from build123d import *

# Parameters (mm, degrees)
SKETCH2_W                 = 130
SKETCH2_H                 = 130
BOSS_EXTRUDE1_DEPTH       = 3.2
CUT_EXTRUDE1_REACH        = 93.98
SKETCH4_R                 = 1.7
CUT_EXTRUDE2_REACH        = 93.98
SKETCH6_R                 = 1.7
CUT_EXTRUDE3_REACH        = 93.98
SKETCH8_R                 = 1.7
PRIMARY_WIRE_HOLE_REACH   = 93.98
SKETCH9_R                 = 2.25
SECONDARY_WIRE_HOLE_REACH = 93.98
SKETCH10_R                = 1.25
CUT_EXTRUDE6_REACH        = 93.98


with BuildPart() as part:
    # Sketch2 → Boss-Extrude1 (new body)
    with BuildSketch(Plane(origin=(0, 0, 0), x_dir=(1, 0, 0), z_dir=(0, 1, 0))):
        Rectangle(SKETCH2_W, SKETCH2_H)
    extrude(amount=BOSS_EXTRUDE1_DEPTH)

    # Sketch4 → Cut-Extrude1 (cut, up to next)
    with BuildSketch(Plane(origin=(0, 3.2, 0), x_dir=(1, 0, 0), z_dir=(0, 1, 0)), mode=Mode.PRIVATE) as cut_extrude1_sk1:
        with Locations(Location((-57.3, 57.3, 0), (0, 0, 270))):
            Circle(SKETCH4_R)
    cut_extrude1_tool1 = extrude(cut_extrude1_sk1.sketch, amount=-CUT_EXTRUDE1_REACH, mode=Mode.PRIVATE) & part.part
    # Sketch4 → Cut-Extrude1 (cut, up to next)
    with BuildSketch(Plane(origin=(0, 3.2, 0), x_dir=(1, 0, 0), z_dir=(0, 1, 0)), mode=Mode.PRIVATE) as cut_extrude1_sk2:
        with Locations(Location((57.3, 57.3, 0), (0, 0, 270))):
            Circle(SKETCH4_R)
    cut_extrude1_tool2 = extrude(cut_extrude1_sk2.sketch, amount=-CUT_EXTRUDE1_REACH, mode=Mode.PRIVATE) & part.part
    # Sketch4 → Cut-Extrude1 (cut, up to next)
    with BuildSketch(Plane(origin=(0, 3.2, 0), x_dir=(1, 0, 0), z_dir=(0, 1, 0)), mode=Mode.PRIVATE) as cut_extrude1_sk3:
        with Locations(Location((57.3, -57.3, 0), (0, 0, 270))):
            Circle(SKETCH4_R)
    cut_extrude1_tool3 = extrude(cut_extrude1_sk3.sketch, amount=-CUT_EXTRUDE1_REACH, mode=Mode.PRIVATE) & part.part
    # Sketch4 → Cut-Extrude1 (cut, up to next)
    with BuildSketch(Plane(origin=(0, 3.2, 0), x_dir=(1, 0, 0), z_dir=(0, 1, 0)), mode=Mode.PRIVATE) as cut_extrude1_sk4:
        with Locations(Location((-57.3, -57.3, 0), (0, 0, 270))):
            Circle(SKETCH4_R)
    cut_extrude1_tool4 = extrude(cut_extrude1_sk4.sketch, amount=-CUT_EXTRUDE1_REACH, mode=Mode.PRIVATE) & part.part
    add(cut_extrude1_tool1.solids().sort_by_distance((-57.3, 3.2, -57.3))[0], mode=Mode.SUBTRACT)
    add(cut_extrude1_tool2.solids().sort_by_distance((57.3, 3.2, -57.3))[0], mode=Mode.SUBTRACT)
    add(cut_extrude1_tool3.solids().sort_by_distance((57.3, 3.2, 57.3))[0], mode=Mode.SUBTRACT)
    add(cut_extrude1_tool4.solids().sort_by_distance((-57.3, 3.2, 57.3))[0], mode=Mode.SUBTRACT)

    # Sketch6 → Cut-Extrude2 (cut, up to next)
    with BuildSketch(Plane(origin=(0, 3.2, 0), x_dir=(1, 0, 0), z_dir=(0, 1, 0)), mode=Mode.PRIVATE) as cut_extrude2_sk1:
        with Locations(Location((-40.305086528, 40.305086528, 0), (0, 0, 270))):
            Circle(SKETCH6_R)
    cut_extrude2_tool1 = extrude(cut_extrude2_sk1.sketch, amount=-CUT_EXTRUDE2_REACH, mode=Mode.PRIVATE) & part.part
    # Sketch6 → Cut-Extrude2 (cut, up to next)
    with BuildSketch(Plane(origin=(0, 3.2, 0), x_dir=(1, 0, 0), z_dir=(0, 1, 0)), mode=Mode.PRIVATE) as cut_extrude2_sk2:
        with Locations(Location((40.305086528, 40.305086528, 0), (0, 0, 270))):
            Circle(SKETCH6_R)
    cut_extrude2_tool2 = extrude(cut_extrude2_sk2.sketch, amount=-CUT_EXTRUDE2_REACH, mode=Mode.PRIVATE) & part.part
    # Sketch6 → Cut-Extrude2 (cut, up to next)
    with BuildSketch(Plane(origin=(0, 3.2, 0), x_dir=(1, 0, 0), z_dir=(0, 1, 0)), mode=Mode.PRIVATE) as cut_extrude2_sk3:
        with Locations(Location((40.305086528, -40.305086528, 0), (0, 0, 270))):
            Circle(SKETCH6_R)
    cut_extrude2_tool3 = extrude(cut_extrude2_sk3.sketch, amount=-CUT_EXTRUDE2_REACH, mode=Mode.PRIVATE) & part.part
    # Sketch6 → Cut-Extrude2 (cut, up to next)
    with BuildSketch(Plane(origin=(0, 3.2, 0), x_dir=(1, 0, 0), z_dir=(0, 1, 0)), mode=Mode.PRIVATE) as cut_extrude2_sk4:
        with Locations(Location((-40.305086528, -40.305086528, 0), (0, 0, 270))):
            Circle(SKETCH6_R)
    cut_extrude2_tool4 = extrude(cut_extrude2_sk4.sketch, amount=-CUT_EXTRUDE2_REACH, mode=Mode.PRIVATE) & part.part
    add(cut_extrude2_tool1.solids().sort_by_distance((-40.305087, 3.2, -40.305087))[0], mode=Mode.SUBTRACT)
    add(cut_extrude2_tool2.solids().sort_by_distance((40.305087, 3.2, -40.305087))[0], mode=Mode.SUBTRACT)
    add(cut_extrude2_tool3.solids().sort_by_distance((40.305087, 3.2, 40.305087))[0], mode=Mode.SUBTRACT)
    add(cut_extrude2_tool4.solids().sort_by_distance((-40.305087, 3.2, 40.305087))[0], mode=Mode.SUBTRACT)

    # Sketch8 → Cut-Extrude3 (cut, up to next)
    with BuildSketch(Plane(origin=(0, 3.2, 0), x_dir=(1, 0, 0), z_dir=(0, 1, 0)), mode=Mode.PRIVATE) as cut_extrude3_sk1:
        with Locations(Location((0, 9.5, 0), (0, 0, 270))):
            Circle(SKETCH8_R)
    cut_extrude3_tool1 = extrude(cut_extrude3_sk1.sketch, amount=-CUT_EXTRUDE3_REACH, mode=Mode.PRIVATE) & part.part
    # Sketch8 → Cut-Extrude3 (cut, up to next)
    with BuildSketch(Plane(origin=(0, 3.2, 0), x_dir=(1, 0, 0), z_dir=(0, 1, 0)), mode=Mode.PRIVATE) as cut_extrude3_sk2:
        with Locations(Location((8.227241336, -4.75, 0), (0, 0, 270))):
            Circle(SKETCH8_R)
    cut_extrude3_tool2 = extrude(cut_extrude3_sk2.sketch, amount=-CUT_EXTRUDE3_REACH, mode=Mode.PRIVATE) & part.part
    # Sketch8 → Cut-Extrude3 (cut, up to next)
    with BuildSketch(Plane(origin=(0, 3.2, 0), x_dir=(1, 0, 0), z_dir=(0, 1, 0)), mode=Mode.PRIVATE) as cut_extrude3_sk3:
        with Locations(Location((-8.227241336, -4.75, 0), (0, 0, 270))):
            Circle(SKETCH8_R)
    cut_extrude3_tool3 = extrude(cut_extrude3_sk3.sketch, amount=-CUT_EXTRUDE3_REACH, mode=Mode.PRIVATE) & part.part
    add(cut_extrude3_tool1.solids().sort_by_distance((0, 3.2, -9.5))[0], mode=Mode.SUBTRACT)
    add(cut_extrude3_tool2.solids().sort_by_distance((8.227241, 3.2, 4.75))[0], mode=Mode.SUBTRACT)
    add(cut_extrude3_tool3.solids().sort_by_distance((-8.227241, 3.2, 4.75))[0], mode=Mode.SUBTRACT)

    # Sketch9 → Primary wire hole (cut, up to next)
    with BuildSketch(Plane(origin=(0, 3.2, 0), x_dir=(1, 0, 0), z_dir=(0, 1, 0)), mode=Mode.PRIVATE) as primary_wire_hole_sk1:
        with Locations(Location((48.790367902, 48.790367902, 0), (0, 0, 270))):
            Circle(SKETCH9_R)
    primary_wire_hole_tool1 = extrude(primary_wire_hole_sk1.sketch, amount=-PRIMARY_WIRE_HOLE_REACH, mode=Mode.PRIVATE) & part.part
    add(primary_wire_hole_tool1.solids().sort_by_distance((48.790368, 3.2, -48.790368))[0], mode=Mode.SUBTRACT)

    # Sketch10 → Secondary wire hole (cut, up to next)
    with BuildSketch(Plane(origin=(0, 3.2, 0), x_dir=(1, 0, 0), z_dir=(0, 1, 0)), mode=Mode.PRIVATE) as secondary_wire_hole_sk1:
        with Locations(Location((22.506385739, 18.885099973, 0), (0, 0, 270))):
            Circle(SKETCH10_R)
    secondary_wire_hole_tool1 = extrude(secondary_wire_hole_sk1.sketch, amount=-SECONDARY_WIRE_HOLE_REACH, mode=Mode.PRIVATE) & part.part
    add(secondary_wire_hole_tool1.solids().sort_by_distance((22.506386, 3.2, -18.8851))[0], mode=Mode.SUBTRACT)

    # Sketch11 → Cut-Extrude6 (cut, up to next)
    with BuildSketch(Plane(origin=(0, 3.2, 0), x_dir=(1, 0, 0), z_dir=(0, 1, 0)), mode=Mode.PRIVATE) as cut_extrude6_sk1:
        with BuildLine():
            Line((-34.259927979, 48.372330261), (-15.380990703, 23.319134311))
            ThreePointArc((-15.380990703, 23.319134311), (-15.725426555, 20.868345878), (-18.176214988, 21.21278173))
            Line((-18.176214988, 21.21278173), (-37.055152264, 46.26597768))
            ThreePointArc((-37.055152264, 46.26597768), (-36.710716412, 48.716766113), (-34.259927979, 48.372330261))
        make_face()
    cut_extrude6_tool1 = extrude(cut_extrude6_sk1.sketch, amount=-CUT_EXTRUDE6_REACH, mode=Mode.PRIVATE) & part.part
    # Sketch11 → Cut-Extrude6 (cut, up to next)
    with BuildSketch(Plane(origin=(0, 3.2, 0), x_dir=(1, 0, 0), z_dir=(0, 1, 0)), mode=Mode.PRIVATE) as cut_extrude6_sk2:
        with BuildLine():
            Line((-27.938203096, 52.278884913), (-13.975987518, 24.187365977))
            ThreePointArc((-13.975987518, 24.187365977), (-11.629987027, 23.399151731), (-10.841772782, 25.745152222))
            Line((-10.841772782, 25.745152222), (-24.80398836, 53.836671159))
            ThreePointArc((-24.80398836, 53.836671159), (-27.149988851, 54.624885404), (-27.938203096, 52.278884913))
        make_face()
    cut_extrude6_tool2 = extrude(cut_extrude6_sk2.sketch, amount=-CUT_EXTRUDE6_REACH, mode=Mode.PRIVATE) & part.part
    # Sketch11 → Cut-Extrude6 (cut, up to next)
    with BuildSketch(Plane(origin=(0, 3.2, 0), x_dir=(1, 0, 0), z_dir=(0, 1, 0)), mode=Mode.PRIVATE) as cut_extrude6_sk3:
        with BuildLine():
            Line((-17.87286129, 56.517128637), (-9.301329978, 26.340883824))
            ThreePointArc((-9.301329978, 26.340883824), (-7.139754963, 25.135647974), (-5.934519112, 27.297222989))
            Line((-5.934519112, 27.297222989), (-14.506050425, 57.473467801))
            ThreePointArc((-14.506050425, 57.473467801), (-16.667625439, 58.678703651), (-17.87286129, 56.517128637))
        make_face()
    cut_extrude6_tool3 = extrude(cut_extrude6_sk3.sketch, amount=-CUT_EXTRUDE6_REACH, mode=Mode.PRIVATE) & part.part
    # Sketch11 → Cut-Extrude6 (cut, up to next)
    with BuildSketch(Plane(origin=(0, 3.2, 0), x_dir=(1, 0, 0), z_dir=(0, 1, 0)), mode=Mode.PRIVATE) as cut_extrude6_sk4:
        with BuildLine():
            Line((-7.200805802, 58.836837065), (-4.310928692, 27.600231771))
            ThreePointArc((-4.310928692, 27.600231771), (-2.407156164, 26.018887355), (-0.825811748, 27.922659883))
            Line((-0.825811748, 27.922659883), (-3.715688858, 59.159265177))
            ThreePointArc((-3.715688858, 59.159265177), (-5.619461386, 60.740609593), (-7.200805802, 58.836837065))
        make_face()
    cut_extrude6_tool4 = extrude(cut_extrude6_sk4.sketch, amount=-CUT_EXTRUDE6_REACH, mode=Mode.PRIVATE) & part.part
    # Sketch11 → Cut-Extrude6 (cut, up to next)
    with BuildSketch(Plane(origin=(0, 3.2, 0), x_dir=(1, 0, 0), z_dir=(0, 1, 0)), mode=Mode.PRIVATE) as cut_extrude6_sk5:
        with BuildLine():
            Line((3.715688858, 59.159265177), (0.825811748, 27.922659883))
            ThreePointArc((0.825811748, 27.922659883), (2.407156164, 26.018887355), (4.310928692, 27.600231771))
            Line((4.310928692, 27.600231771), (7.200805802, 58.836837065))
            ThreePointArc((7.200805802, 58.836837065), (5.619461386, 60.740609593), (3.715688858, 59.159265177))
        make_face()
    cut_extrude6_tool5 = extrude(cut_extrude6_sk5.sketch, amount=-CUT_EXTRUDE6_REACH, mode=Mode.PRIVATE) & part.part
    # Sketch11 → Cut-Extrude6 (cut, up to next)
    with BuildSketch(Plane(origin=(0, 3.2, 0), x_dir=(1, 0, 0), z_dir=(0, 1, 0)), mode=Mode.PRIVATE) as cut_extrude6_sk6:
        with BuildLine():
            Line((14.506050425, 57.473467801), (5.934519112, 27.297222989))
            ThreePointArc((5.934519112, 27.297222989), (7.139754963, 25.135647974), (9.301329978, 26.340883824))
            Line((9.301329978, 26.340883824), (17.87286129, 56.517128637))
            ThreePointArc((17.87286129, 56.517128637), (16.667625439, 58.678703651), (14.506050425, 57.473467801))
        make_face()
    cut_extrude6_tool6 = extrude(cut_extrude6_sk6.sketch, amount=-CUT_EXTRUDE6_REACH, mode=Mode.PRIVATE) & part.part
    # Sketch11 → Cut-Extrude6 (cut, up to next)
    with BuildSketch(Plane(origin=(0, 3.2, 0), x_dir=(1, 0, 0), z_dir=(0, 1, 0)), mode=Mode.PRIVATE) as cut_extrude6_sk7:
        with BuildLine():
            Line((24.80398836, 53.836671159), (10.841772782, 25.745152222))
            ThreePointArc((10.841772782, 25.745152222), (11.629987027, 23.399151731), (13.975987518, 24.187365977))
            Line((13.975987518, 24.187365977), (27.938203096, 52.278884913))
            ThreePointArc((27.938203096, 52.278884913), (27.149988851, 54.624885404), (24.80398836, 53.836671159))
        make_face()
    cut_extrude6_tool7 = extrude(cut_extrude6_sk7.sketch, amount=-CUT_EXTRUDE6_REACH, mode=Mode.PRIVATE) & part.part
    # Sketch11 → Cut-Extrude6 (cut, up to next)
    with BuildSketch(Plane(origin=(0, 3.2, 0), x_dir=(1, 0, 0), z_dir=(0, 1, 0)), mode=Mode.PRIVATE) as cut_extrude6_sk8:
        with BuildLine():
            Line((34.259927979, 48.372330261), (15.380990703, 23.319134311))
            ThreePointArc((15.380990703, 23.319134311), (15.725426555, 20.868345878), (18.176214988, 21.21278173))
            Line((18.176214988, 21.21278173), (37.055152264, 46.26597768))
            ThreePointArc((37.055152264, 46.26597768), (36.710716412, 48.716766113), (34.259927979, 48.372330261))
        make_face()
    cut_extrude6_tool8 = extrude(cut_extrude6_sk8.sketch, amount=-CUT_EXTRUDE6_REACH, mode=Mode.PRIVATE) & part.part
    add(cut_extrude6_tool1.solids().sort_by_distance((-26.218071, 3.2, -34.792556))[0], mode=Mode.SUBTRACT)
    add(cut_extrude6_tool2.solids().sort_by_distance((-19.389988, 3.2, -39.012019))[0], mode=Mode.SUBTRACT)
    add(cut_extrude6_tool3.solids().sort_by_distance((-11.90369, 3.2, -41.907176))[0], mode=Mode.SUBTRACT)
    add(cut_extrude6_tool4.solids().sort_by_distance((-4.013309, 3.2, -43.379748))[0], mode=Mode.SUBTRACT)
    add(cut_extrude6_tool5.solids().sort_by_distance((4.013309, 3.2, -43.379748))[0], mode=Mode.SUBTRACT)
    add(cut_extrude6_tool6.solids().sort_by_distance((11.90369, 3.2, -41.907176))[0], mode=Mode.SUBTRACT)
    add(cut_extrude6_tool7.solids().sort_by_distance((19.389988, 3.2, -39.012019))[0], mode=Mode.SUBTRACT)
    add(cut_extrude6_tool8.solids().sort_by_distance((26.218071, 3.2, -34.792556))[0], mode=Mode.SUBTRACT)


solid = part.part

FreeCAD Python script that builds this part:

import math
import FreeCAD as App
import Part
import Sketcher
Q = App.Units.Quantity

doc = App.newDocument("Part")
body = doc.addObject("PartDesign::Body", "Body")

# Sketch on XZ plane
sketch1 = body.newObject("Sketcher::SketchObject", "Sketch")
sketch1.AttachmentSupport = (doc.getObject("XZ_Plane"), [""])
sketch1.MapMode = "FlatFace"
sketch1.addGeometry([
    Part.LineSegment(App.Vector(-65, -65, 0), App.Vector(-65, 65, 0)),
    Part.LineSegment(App.Vector(-65, 65, 0), App.Vector(65, 65, 0)),
    Part.LineSegment(App.Vector(65, 65, 0), App.Vector(65, -65, 0)),
    Part.LineSegment(App.Vector(65, -65, 0), App.Vector(-65, -65, 0)),
], False)
sketch1.addConstraint([
    Sketcher.Constraint("Coincident", 0, 2, 1, 1),
    Sketcher.Constraint("Coincident", 1, 2, 2, 1),
    Sketcher.Constraint("Coincident", 2, 2, 3, 1),
    Sketcher.Constraint("Coincident", 3, 2, 0, 1),
    Sketcher.Constraint("Vertical", 0),
    Sketcher.Constraint("Horizontal", 1),
    Sketcher.Constraint("Vertical", 2),
    Sketcher.Constraint("Horizontal", 3),
    Sketcher.Constraint("Symmetric", 0, 2, 2, 2, -1, 1),
    Sketcher.Constraint("Equal", 3, 0),
    Sketcher.Constraint("DistanceX", 1, 1, 1, 2, 130.0),
])
pad1 = body.newObject("PartDesign::Pad", "Pad")
pad1.Profile = sketch1
pad1.Length = 3.2
pad1.Reversed = True

# Sketch on XZ plane
sketch2 = body.newObject("Sketcher::SketchObject", "Sketch001")
sketch2.AttachmentSupport = (doc.getObject("XZ_Plane"), [""])
sketch2.MapMode = "FlatFace"
sketch2.AttachmentOffset = App.Placement(App.Vector(0, 0, -3.2), App.Rotation())
sketch2.addGeometry(Part.Circle(App.Vector(-57.3, -57.3, 0), App.Vector(0, 0, 1), 1.7), False)
sketch2.addConstraint([
    Sketcher.Constraint("Diameter", 0, 3.4),
    Sketcher.Constraint("DistanceX", 0, 3, -1, 1, 57.3),
    Sketcher.Constraint("DistanceY", 0, 3, -1, 1, 57.3),
])
pocket1 = body.newObject("PartDesign::Pocket", "Pocket")
pocket1.Profile = sketch2
pocket1.Type = "UpToFirst"
pocket1.Reversed = True

# Sketch on XZ plane
sketch3 = body.newObject("Sketcher::SketchObject", "Sketch002")
sketch3.AttachmentSupport = (doc.getObject("XZ_Plane"), [""])
sketch3.MapMode = "FlatFace"
sketch3.AttachmentOffset = App.Placement(App.Vector(0, 0, -3.2), App.Rotation())
sketch3.addGeometry(Part.Circle(App.Vector(57.3, -57.3, 0), App.Vector(0, 0, 1), 1.7), False)
sketch3.addConstraint([
    Sketcher.Constraint("Diameter", 0, 3.4),
    Sketcher.Constraint("DistanceX", -1, 1, 0, 3, 57.3),
    Sketcher.Constraint("DistanceY", 0, 3, -1, 1, 57.3),
])
pocket2 = body.newObject("PartDesign::Pocket", "Pocket001")
pocket2.Profile = sketch3
pocket2.Type = "UpToFirst"
pocket2.Reversed = True

# Sketch on XZ plane
sketch4 = body.newObject("Sketcher::SketchObject", "Sketch003")
sketch4.AttachmentSupport = (doc.getObject("XZ_Plane"), [""])
sketch4.MapMode = "FlatFace"
sketch4.AttachmentOffset = App.Placement(App.Vector(0, 0, -3.2), App.Rotation())
sketch4.addGeometry(Part.Circle(App.Vector(57.3, 57.3, 0), App.Vector(0, 0, 1), 1.7), False)
sketch4.addConstraint([
    Sketcher.Constraint("Diameter", 0, 3.4),
    Sketcher.Constraint("DistanceX", -1, 1, 0, 3, 57.3),
    Sketcher.Constraint("DistanceY", -1, 1, 0, 3, 57.3),
])
pocket3 = body.newObject("PartDesign::Pocket", "Pocket002")
pocket3.Profile = sketch4
pocket3.Type = "UpToFirst"
pocket3.Reversed = True

# Sketch on XZ plane
sketch5 = body.newObject("Sketcher::SketchObject", "Sketch004")
sketch5.AttachmentSupport = (doc.getObject("XZ_Plane"), [""])
sketch5.MapMode = "FlatFace"
sketch5.AttachmentOffset = App.Placement(App.Vector(0, 0, -3.2), App.Rotation())
sketch5.addGeometry(Part.Circle(App.Vector(-57.3, 57.3, 0), App.Vector(0, 0, 1), 1.7), False)
sketch5.addConstraint([
    Sketcher.Constraint("Diameter", 0, 3.4),
    Sketcher.Constraint("DistanceX", 0, 3, -1, 1, 57.3),
    Sketcher.Constraint("DistanceY", -1, 1, 0, 3, 57.3),
])
pocket4 = body.newObject("PartDesign::Pocket", "Pocket003")
pocket4.Profile = sketch5
pocket4.Type = "UpToFirst"
pocket4.Reversed = True

# Sketch on XZ plane
sketch6 = body.newObject("Sketcher::SketchObject", "Sketch005")
sketch6.AttachmentSupport = (doc.getObject("XZ_Plane"), [""])
sketch6.MapMode = "FlatFace"
sketch6.AttachmentOffset = App.Placement(App.Vector(0, 0, -3.2), App.Rotation())
sketch6.addGeometry(Part.Circle(App.Vector(-40.305087, -40.305087, 0), App.Vector(0, 0, 1), 1.7), False)
sketch6.addConstraint([
    Sketcher.Constraint("Diameter", 0, 3.4),
    Sketcher.Constraint("DistanceX", 0, 3, -1, 1, 40.305087),
    Sketcher.Constraint("DistanceY", 0, 3, -1, 1, 40.305087),
])
pocket5 = body.newObject("PartDesign::Pocket", "Pocket004")
pocket5.Profile = sketch6
pocket5.Type = "UpToFirst"
pocket5.Reversed = True

# Sketch on XZ plane
sketch7 = body.newObject("Sketcher::SketchObject", "Sketch006")
sketch7.AttachmentSupport = (doc.getObject("XZ_Plane"), [""])
sketch7.MapMode = "FlatFace"
sketch7.AttachmentOffset = App.Placement(App.Vector(0, 0, -3.2), App.Rotation())
sketch7.addGeometry(Part.Circle(App.Vector(40.305087, -40.305087, 0), App.Vector(0, 0, 1), 1.7), False)
sketch7.addConstraint([
    Sketcher.Constraint("Diameter", 0, 3.4),
    Sketcher.Constraint("DistanceX", -1, 1, 0, 3, 40.305087),
    Sketcher.Constraint("DistanceY", 0, 3, -1, 1, 40.305087),
])
pocket6 = body.newObject("PartDesign::Pocket", "Pocket005")
pocket6.Profile = sketch7
pocket6.Type = "UpToFirst"
pocket6.Reversed = True

# Sketch on XZ plane
sketch8 = body.newObject("Sketcher::SketchObject", "Sketch007")
sketch8.AttachmentSupport = (doc.getObject("XZ_Plane"), [""])
sketch8.MapMode = "FlatFace"
sketch8.AttachmentOffset = App.Placement(App.Vector(0, 0, -3.2), App.Rotation())
sketch8.addGeometry(Part.Circle(App.Vector(40.305087, 40.305087, 0), App.Vector(0, 0, 1), 1.7), False)
sketch8.addConstraint([
    Sketcher.Constraint("Diameter", 0, 3.4),
    Sketcher.Constraint("DistanceX", -1, 1, 0, 3, 40.305087),
    Sketcher.Constraint("DistanceY", -1, 1, 0, 3, 40.305087),
])
pocket7 = body.newObject("PartDesign::Pocket", "Pocket006")
pocket7.Profile = sketch8
pocket7.Type = "UpToFirst"
pocket7.Reversed = True

# Sketch on XZ plane
sketch9 = body.newObject("Sketcher::SketchObject", "Sketch008")
sketch9.AttachmentSupport = (doc.getObject("XZ_Plane"), [""])
sketch9.MapMode = "FlatFace"
sketch9.AttachmentOffset = App.Placement(App.Vector(0, 0, -3.2), App.Rotation())
sketch9.addGeometry(Part.Circle(App.Vector(-40.305087, 40.305087, 0), App.Vector(0, 0, 1), 1.7), False)
sketch9.addConstraint([
    Sketcher.Constraint("Diameter", 0, 3.4),
    Sketcher.Constraint("DistanceX", 0, 3, -1, 1, 40.305087),
    Sketcher.Constraint("DistanceY", -1, 1, 0, 3, 40.305087),
])
pocket8 = body.newObject("PartDesign::Pocket", "Pocket007")
pocket8.Profile = sketch9
pocket8.Type = "UpToFirst"
pocket8.Reversed = True

# Sketch on XZ plane
sketch10 = body.newObject("Sketcher::SketchObject", "Sketch009")
sketch10.AttachmentSupport = (doc.getObject("XZ_Plane"), [""])
sketch10.MapMode = "FlatFace"
sketch10.AttachmentOffset = App.Placement(App.Vector(0, 0, -3.2), App.Rotation())
sketch10.addGeometry(Part.Circle(App.Vector(0, -9.5, 0), App.Vector(0, 0, 1), 1.7), False)
sketch10.addConstraint([
    Sketcher.Constraint("PointOnObject", 0, 3, -2),
    Sketcher.Constraint("Diameter", 0, 3.4),
    Sketcher.Constraint("DistanceY", 0, 3, -1, 1, 9.5),
])
pocket9 = body.newObject("PartDesign::Pocket", "Pocket008")
pocket9.Profile = sketch10
pocket9.Type = "UpToFirst"
pocket9.Reversed = True

# Sketch on XZ plane
sketch11 = body.newObject("Sketcher::SketchObject", "Sketch010")
sketch11.AttachmentSupport = (doc.getObject("XZ_Plane"), [""])
sketch11.MapMode = "FlatFace"
sketch11.AttachmentOffset = App.Placement(App.Vector(0, 0, -3.2), App.Rotation())
sketch11.addGeometry(Part.Circle(App.Vector(8.227241, 4.75, 0), App.Vector(0, 0, 1), 1.7), False)
sketch11.addConstraint([
    Sketcher.Constraint("Diameter", 0, 3.4),
    Sketcher.Constraint("DistanceY", -1, 1, 0, 3, 4.75),
    Sketcher.Constraint("DistanceX", -1, 1, 0, 3, 8.227241),
])
pocket10 = body.newObject("PartDesign::Pocket", "Pocket009")
pocket10.Profile = sketch11
pocket10.Type = "UpToFirst"
pocket10.Reversed = True

# Sketch on XZ plane
sketch12 = body.newObject("Sketcher::SketchObject", "Sketch011")
sketch12.AttachmentSupport = (doc.getObject("XZ_Plane"), [""])
sketch12.MapMode = "FlatFace"
sketch12.AttachmentOffset = App.Placement(App.Vector(0, 0, -3.2), App.Rotation())
sketch12.addGeometry(Part.Circle(App.Vector(-8.227241, 4.75, 0), App.Vector(0, 0, 1), 1.7), False)
sketch12.addConstraint([
    Sketcher.Constraint("Diameter", 0, 3.4),
    Sketcher.Constraint("DistanceY", -1, 1, 0, 3, 4.75),
    Sketcher.Constraint("DistanceX", 0, 3, -1, 1, 8.227241),
])
pocket11 = body.newObject("PartDesign::Pocket", "Pocket010")
pocket11.Profile = sketch12
pocket11.Type = "UpToFirst"
pocket11.Reversed = True

# Sketch on XZ plane
sketch13 = body.newObject("Sketcher::SketchObject", "Sketch012")
sketch13.AttachmentSupport = (doc.getObject("XZ_Plane"), [""])
sketch13.MapMode = "FlatFace"
sketch13.AttachmentOffset = App.Placement(App.Vector(0, 0, -3.2), App.Rotation())
sketch13.addGeometry(Part.Circle(App.Vector(48.790368, -48.790368, 0), App.Vector(0, 0, 1), 2.25), False)
sketch13.addConstraint([
    Sketcher.Constraint("Diameter", 0, 4.5),
    Sketcher.Constraint("DistanceX", -1, 1, 0, 3, 48.790368),
    Sketcher.Constraint("DistanceY", 0, 3, -1, 1, 48.790368),
])
pocket12 = body.newObject("PartDesign::Pocket", "Pocket011")
pocket12.Profile = sketch13
pocket12.Type = "UpToFirst"
pocket12.Reversed = True

# Sketch on XZ plane
sketch14 = body.newObject("Sketcher::SketchObject", "Sketch013")
sketch14.AttachmentSupport = (doc.getObject("XZ_Plane"), [""])
sketch14.MapMode = "FlatFace"
sketch14.AttachmentOffset = App.Placement(App.Vector(0, 0, -3.2), App.Rotation())
sketch14.addGeometry(Part.Circle(App.Vector(22.506386, -18.8851, 0), App.Vector(0, 0, 1), 1.25), False)
sketch14.addConstraint([
    Sketcher.Constraint("Diameter", 0, 2.5),
    Sketcher.Constraint("DistanceY", 0, 3, -1, 1, 18.8851),
    Sketcher.Constraint("DistanceX", -1, 1, 0, 3, 22.506386),
])
pocket13 = body.newObject("PartDesign::Pocket", "Pocket012")
pocket13.Profile = sketch14
pocket13.Type = "UpToFirst"
pocket13.Reversed = True

# Sketch on XZ plane
sketch15 = body.newObject("Sketcher::SketchObject", "Sketch014")
sketch15.AttachmentSupport = (doc.getObject("XZ_Plane"), [""])
sketch15.MapMode = "FlatFace"
sketch15.AttachmentOffset = App.Placement(App.Vector(0, 0, -3.2), App.Rotation())
sketch15.addGeometry([
    Part.LineSegment(App.Vector(-15.380991, -23.319134, 0), App.Vector(-34.259928, -48.37233, 0)),
    Part.ArcOfCircle(Part.Circle(App.Vector(-35.65754, -47.319154, 0), App.Vector(0, 0, 1), 1.75), math.radians(143), math.radians(323)),
    Part.LineSegment(App.Vector(-37.055152, -46.265978, 0), App.Vector(-18.176215, -21.212782, 0)),
    Part.ArcOfCircle(Part.Circle(App.Vector(-16.778603, -22.265958, 0), App.Vector(0, 0, 1), 1.75), math.radians(-37), math.radians(143)),
], False)
sketch15.addConstraint([
    Sketcher.Constraint("Tangent", 0, 2, 1, 2),
    Sketcher.Constraint("Tangent", 1, 1, 2, 1),
    Sketcher.Constraint("Tangent", 2, 2, 3, 2),
    Sketcher.Constraint("Tangent", 3, 1, 0, 1),
    Sketcher.Constraint("Equal", 1, 3),
    Sketcher.Constraint("Angle", 0, Q("-127 deg")),
    Sketcher.Constraint("Radius", 1, 1.75),
    Sketcher.Constraint("Distance", 0, 31.37),
    Sketcher.Constraint("DistanceX", 1, 3, -1, 1, 35.65754),
    Sketcher.Constraint("DistanceY", 3, 3, -1, 1, 22.265958),
])
pocket14 = body.newObject("PartDesign::Pocket", "Pocket013")
pocket14.Profile = sketch15
pocket14.Type = "UpToFirst"
pocket14.Reversed = True

# Sketch on XZ plane
sketch16 = body.newObject("Sketcher::SketchObject", "Sketch015")
sketch16.AttachmentSupport = (doc.getObject("XZ_Plane"), [""])
sketch16.MapMode = "FlatFace"
sketch16.AttachmentOffset = App.Placement(App.Vector(0, 0, -3.2), App.Rotation())
sketch16.addGeometry([
    Part.LineSegment(App.Vector(-27.938203, -52.278885, 0), App.Vector(-13.975988, -24.187366, 0)),
    Part.ArcOfCircle(Part.Circle(App.Vector(-12.40888, -24.966259, 0), App.Vector(0, 0, 1), 1.75), math.radians(-26.428571), math.radians(153.571429)),
    Part.LineSegment(App.Vector(-10.841773, -25.745152, 0), App.Vector(-24.803988, -53.836671, 0)),
    Part.ArcOfCircle(Part.Circle(App.Vector(-26.371096, -53.057778, 0), App.Vector(0, 0, 1), 1.75), math.radians(153.571429), math.radians(333.571429)),
], False)
sketch16.addConstraint([
    Sketcher.Constraint("Tangent", 0, 2, 1, 2),
    Sketcher.Constraint("Tangent", 1, 1, 2, 1),
    Sketcher.Constraint("Tangent", 2, 2, 3, 2),
    Sketcher.Constraint("Tangent", 3, 1, 0, 1),
    Sketcher.Constraint("Equal", 1, 3),
    Sketcher.Constraint("Radius", 1, 1.75),
    Sketcher.Constraint("Distance", 0, 31.37),
    Sketcher.Constraint("DistanceX", 2, 2, 0, 2, 10.828001),
    Sketcher.Constraint("DistanceX", 1, 3, -1, 1, 12.40888),
    Sketcher.Constraint("DistanceY", 1, 3, -1, 1, 24.966259),
])
pocket15 = body.newObject("PartDesign::Pocket", "Pocket014")
pocket15.Profile = sketch16
pocket15.Type = "UpToFirst"
pocket15.Reversed = True

# Sketch on XZ plane
sketch17 = body.newObject("Sketcher::SketchObject", "Sketch016")
sketch17.AttachmentSupport = (doc.getObject("XZ_Plane"), [""])
sketch17.MapMode = "FlatFace"
sketch17.AttachmentOffset = App.Placement(App.Vector(0, 0, -3.2), App.Rotation())
sketch17.addGeometry([
    Part.LineSegment(App.Vector(-17.872861, -56.517129, 0), App.Vector(-9.30133, -26.340884, 0)),
    Part.ArcOfCircle(Part.Circle(App.Vector(-7.617925, -26.819053, 0), App.Vector(0, 0, 1), 1.75), math.radians(-15.857143), math.radians(164.142857)),
    Part.LineSegment(App.Vector(-5.934519, -27.297223, 0), App.Vector(-14.50605, -57.473468, 0)),
    Part.ArcOfCircle(Part.Circle(App.Vector(-16.189456, -56.995298, 0), App.Vector(0, 0, 1), 1.75), math.radians(164.142857), math.radians(344.142857)),
], False)
sketch17.addConstraint([
    Sketcher.Constraint("Tangent", 0, 2, 1, 2),
    Sketcher.Constraint("Tangent", 1, 1, 2, 1),
    Sketcher.Constraint("Tangent", 2, 2, 3, 2),
    Sketcher.Constraint("Tangent", 3, 1, 0, 1),
    Sketcher.Constraint("Equal", 1, 3),
    Sketcher.Constraint("Radius", 1, 1.75),
    Sketcher.Constraint("Distance", 0, 31.37),
    Sketcher.Constraint("DistanceY", 3, 3, -1, 1, 56.995298),
    Sketcher.Constraint("DistanceX", 0, 2, -1, 1, 9.30133),
    Sketcher.Constraint("DistanceX", 1, 1, -1, 1, 5.934519),
])
pocket16 = body.newObject("PartDesign::Pocket", "Pocket015")
pocket16.Profile = sketch17
pocket16.Type = "UpToFirst"
pocket16.Reversed = True

# Sketch on XZ plane
sketch18 = body.newObject("Sketcher::SketchObject", "Sketch017")
sketch18.AttachmentSupport = (doc.getObject("XZ_Plane"), [""])
sketch18.MapMode = "FlatFace"
sketch18.AttachmentOffset = App.Placement(App.Vector(0, 0, -3.2), App.Rotation())
sketch18.addGeometry([
    Part.LineSegment(App.Vector(-7.200806, -58.836837, 0), App.Vector(-4.310929, -27.600232, 0)),
    Part.ArcOfCircle(Part.Circle(App.Vector(-2.56837, -27.761446, 0), App.Vector(0, 0, 1), 1.75), math.radians(-5.285714), math.radians(174.714286)),
    Part.LineSegment(App.Vector(-0.825812, -27.92266, 0), App.Vector(-3.715689, -59.159265, 0)),
    Part.ArcOfCircle(Part.Circle(App.Vector(-5.458247, -58.998051, 0), App.Vector(0, 0, 1), 1.75), math.radians(174.714286), math.radians(354.714286)),
], False)
sketch18.addConstraint([
    Sketcher.Constraint("Coincident", 0, 2, 1, 2),
    Sketcher.Constraint("Coincident", 1, 1, 2, 1),
    Sketcher.Constraint("Coincident", 2, 2, 3, 2),
    Sketcher.Constraint("Coincident", 3, 1, 0, 1),
    Sketcher.Constraint("Radius", 1, 1.75),
    Sketcher.Constraint("Radius", 3, 1.75),
    Sketcher.Constraint("Distance", 0, 31.37),
    Sketcher.Constraint("Distance", 2, 31.37),
    Sketcher.Constraint("DistanceX", 1, 3, -1, 1, 2.56837),
    Sketcher.Constraint("DistanceY", 3, 3, -1, 1, 58.998051),
    Sketcher.Constraint("DistanceX", 0, 2, -1, 1, 4.310929),
    Sketcher.Constraint("DistanceY", 0, 2, -1, 1, 27.600232),
    Sketcher.Constraint("DistanceX", 1, 1, -1, 1, 0.825812),
    Sketcher.Constraint("DistanceX", 2, 2, -1, 1, 3.715689),
])
pocket17 = body.newObject("PartDesign::Pocket", "Pocket016")
pocket17.Profile = sketch18
pocket17.Type = "UpToFirst"
pocket17.Reversed = True

# Sketch on XZ plane
sketch19 = body.newObject("Sketcher::SketchObject", "Sketch018")
sketch19.AttachmentSupport = (doc.getObject("XZ_Plane"), [""])
sketch19.MapMode = "FlatFace"
sketch19.AttachmentOffset = App.Placement(App.Vector(0, 0, -3.2), App.Rotation())
sketch19.addGeometry([
    Part.LineSegment(App.Vector(3.715689, -59.159265, 0), App.Vector(0.825812, -27.92266, 0)),
    Part.ArcOfCircle(Part.Circle(App.Vector(2.56837, -27.761446, 0), App.Vector(0, 0, 1), 1.75), math.radians(5.285714), math.radians(185.285714)),
    Part.LineSegment(App.Vector(4.310929, -27.600232, 0), App.Vector(7.200806, -58.836837, 0)),
    Part.ArcOfCircle(Part.Circle(App.Vector(5.458247, -58.998051, 0), App.Vector(0, 0, 1), 1.75), math.radians(-174.714286), math.radians(5.285714)),
], False)
sketch19.addConstraint([
    Sketcher.Constraint("Coincident", 0, 2, 1, 2),
    Sketcher.Constraint("Coincident", 1, 1, 2, 1),
    Sketcher.Constraint("Coincident", 2, 2, 3, 2),
    Sketcher.Constraint("Coincident", 3, 1, 0, 1),
    Sketcher.Constraint("Radius", 1, 1.75),
    Sketcher.Constraint("Radius", 3, 1.75),
    Sketcher.Constraint("Distance", 0, 31.37),
    Sketcher.Constraint("Distance", 2, 31.37),
    Sketcher.Constraint("DistanceX", -1, 1, 1, 3, 2.56837),
    Sketcher.Constraint("DistanceY", 3, 3, -1, 1, 58.998051),
    Sketcher.Constraint("DistanceX", -1, 1, 0, 2, 0.825812),
    Sketcher.Constraint("DistanceY", 0, 2, -1, 1, 27.92266),
    Sketcher.Constraint("DistanceX", -1, 1, 1, 1, 4.310929),
    Sketcher.Constraint("DistanceX", -1, 1, 3, 1, 3.715689),
])
pocket18 = body.newObject("PartDesign::Pocket", "Pocket017")
pocket18.Profile = sketch19
pocket18.Type = "UpToFirst"
pocket18.Reversed = True

# Sketch on XZ plane
sketch20 = body.newObject("Sketcher::SketchObject", "Sketch019")
sketch20.AttachmentSupport = (doc.getObject("XZ_Plane"), [""])
sketch20.MapMode = "FlatFace"
sketch20.AttachmentOffset = App.Placement(App.Vector(0, 0, -3.2), App.Rotation())
sketch20.addGeometry([
    Part.LineSegment(App.Vector(14.50605, -57.473468, 0), App.Vector(5.934519, -27.297223, 0)),
    Part.ArcOfCircle(Part.Circle(App.Vector(7.617925, -26.819053, 0), App.Vector(0, 0, 1), 1.75), math.radians(15.857143), math.radians(195.857143)),
    Part.LineSegment(App.Vector(9.30133, -26.340884, 0), App.Vector(17.872861, -56.517129, 0)),
    Part.ArcOfCircle(Part.Circle(App.Vector(16.189456, -56.995298, 0), App.Vector(0, 0, 1), 1.75), math.radians(-164.142857), math.radians(15.857143)),
], False)
sketch20.addConstraint([
    Sketcher.Constraint("Tangent", 0, 2, 1, 2),
    Sketcher.Constraint("Tangent", 1, 1, 2, 1),
    Sketcher.Constraint("Tangent", 2, 2, 3, 2),
    Sketcher.Constraint("Tangent", 3, 1, 0, 1),
    Sketcher.Constraint("Equal", 1, 3),
    Sketcher.Constraint("Radius", 1, 1.75),
    Sketcher.Constraint("Distance", 0, 31.37),
    Sketcher.Constraint("DistanceY", 3, 3, -1, 1, 56.995298),
    Sketcher.Constraint("DistanceX", -1, 1, 0, 2, 5.934519),
    Sketcher.Constraint("DistanceX", -1, 1, 1, 1, 9.30133),
])
pocket19 = body.newObject("PartDesign::Pocket", "Pocket018")
pocket19.Profile = sketch20
pocket19.Type = "UpToFirst"
pocket19.Reversed = True

# Sketch on XZ plane
sketch21 = body.newObject("Sketcher::SketchObject", "Sketch020")
sketch21.AttachmentSupport = (doc.getObject("XZ_Plane"), [""])
sketch21.MapMode = "FlatFace"
sketch21.AttachmentOffset = App.Placement(App.Vector(0, 0, -3.2), App.Rotation())
sketch21.addGeometry([
    Part.LineSegment(App.Vector(24.803988, -53.836671, 0), App.Vector(10.841773, -25.745152, 0)),
    Part.ArcOfCircle(Part.Circle(App.Vector(12.40888, -24.966259, 0), App.Vector(0, 0, 1), 1.75), math.radians(26.428571), math.radians(206.428571)),
    Part.LineSegment(App.Vector(13.975988, -24.187366, 0), App.Vector(27.938203, -52.278885, 0)),
    Part.ArcOfCircle(Part.Circle(App.Vector(26.371096, -53.057778, 0), App.Vector(0, 0, 1), 1.75), math.radians(-153.571429), math.radians(26.428571)),
], False)
sketch21.addConstraint([
    Sketcher.Constraint("Tangent", 0, 2, 1, 2),
    Sketcher.Constraint("Tangent", 1, 1, 2, 1),
    Sketcher.Constraint("Tangent", 2, 2, 3, 2),
    Sketcher.Constraint("Tangent", 3, 1, 0, 1),
    Sketcher.Constraint("Equal", 1, 3),
    Sketcher.Constraint("Radius", 1, 1.75),
    Sketcher.Constraint("Distance", 0, 31.37),
    Sketcher.Constraint("DistanceX", 1, 1, 3, 1, 10.828001),
    Sketcher.Constraint("DistanceX", -1, 1, 1, 3, 12.40888),
    Sketcher.Constraint("DistanceY", 1, 3, -1, 1, 24.966259),
])
pocket20 = body.newObject("PartDesign::Pocket", "Pocket019")
pocket20.Profile = sketch21
pocket20.Type = "UpToFirst"
pocket20.Reversed = True

# Sketch on XZ plane
sketch22 = body.newObject("Sketcher::SketchObject", "Sketch021")
sketch22.AttachmentSupport = (doc.getObject("XZ_Plane"), [""])
sketch22.MapMode = "FlatFace"
sketch22.AttachmentOffset = App.Placement(App.Vector(0, 0, -3.2), App.Rotation())
sketch22.addGeometry([
    Part.LineSegment(App.Vector(34.259928, -48.37233, 0), App.Vector(15.380991, -23.319134, 0)),
    Part.ArcOfCircle(Part.Circle(App.Vector(16.778603, -22.265958, 0), App.Vector(0, 0, 1), 1.75), math.radians(37), math.radians(217)),
    Part.LineSegment(App.Vector(18.176215, -21.212782, 0), App.Vector(37.055152, -46.265978, 0)),
    Part.ArcOfCircle(Part.Circle(App.Vector(35.65754, -47.319154, 0), App.Vector(0, 0, 1), 1.75), math.radians(-143), math.radians(37)),
], False)
sketch22.addConstraint([
    Sketcher.Constraint("Tangent", 0, 2, 1, 2),
    Sketcher.Constraint("Tangent", 1, 1, 2, 1),
    Sketcher.Constraint("Tangent", 2, 2, 3, 2),
    Sketcher.Constraint("Tangent", 3, 1, 0, 1),
    Sketcher.Constraint("Equal", 1, 3),
    Sketcher.Constraint("Angle", 0, Q("127 deg")),
    Sketcher.Constraint("Radius", 1, 1.75),
    Sketcher.Constraint("Distance", 0, 31.37),
    Sketcher.Constraint("DistanceY", 1, 3, -1, 1, 22.265958),
    Sketcher.Constraint("DistanceX", -1, 1, 3, 3, 35.65754),
])
pocket21 = body.newObject("PartDesign::Pocket", "Pocket020")
pocket21.Profile = sketch22
pocket21.Type = "UpToFirst"
pocket21.Reversed = True

doc.recompute()
